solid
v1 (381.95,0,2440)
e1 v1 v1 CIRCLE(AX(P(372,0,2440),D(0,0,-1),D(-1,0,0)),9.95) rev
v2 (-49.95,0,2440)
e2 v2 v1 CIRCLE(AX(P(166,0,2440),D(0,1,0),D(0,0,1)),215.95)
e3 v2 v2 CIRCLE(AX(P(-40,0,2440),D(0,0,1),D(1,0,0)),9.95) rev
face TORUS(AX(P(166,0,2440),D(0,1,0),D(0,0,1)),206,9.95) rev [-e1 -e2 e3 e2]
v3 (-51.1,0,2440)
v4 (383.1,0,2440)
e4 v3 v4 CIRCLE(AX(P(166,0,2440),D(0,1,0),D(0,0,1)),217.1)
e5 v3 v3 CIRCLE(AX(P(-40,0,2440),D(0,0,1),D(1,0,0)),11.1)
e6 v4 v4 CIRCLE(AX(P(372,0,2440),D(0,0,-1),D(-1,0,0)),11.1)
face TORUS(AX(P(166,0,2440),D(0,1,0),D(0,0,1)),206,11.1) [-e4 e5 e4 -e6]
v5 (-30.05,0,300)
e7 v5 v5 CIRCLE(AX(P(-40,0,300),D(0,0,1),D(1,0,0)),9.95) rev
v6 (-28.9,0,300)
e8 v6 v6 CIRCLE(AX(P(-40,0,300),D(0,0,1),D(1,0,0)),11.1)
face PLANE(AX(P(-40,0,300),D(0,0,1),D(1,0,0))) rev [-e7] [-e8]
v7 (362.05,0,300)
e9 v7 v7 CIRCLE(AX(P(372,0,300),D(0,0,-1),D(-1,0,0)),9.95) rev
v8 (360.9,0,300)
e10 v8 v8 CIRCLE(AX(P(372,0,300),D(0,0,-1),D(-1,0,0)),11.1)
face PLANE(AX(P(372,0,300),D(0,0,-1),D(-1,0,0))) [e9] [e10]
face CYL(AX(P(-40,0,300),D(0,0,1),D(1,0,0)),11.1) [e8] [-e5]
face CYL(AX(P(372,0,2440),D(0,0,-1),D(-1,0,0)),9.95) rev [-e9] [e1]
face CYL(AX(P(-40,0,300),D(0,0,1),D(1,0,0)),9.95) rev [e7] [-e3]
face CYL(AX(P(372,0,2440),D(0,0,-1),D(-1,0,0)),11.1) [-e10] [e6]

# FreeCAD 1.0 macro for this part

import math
import FreeCAD as App
import Part
import Sketcher
Q = App.Units.Quantity

doc = App.newDocument("Part")
body = doc.addObject("PartDesign::Body", "Body")

sketch1 = body.newObject("Sketcher::SketchObject", "Sketch")
sketch1.AttachmentSupport = (doc.getObject("XY_Plane"), [""])
sketch1.MapMode = "FlatFace"
sketch1.AttachmentOffset = App.Placement(App.Vector(0, 0, 300), App.Rotation())
sketch1.addGeometry([
    Part.Circle(App.Vector(372, 0, 0), App.Vector(0, 0, 1), 11),
    Part.Circle(App.Vector(372, 0, 0), App.Vector(0, 0, 1), 10),
], False)
sketch1.addConstraint([
    Sketcher.Constraint("Coincident", 1, 3, 0, 3),
    Sketcher.Constraint("PointOnObject", 0, 3, -1),
    Sketcher.Constraint("Diameter", 0, Q("22.2 mm")),
    Sketcher.Constraint("Diameter", 1, Q("19.9 mm")),
    Sketcher.Constraint("DistanceX", -1, 1, 0, 3, Q("372 mm")),
])

sketch2 = body.newObject("Sketcher::SketchObject", "Sketch001")
sketch2.AttachmentSupport = (doc.getObject("XZ_Plane"), [""])
sketch2.MapMode = "FlatFace"
sketch2.addGeometry([
    Part.LineSegment(App.Vector(372, 300, 0), App.Vector(372, 2440, 0)),
    Part.ArcOfCircle(Part.Circle(App.Vector(166, 2440, 0), App.Vector(0, 0, 1), 206), math.radians(0), math.radians(180)),
    Part.LineSegment(App.Vector(-40, 2440, 0), App.Vector(-40, 300, 0)),
], False)
sketch2.addConstraint([
    Sketcher.Constraint("Tangent", 0, 2, 1, 1),
    Sketcher.Constraint("Tangent", 1, 2, 2, 1),
    Sketcher.Constraint("Vertical", 0),
    Sketcher.Constraint("Vertical", 2),
    Sketcher.Constraint("Horizontal", 0, 1, 2, 2),
    Sketcher.Constraint("Radius", 1, Q("206 mm")),
    Sketcher.Constraint("DistanceY", 0, 1, 0, 2, Q("2140 mm")),
    Sketcher.Constraint("DistanceX", -1, 1, 1, 3, Q("166 mm")),
    Sketcher.Constraint("DistanceY", -1, 1, 1, 3, Q("2440 mm")),
])
doc.recompute()

additivepipe = body.newObject("PartDesign::AdditivePipe", "AdditivePipe")
additivepipe.Profile = sketch1
additivepipe.Spine = (sketch2, ["Edge1", "Edge2", "Edge3"])

doc.recompute()
